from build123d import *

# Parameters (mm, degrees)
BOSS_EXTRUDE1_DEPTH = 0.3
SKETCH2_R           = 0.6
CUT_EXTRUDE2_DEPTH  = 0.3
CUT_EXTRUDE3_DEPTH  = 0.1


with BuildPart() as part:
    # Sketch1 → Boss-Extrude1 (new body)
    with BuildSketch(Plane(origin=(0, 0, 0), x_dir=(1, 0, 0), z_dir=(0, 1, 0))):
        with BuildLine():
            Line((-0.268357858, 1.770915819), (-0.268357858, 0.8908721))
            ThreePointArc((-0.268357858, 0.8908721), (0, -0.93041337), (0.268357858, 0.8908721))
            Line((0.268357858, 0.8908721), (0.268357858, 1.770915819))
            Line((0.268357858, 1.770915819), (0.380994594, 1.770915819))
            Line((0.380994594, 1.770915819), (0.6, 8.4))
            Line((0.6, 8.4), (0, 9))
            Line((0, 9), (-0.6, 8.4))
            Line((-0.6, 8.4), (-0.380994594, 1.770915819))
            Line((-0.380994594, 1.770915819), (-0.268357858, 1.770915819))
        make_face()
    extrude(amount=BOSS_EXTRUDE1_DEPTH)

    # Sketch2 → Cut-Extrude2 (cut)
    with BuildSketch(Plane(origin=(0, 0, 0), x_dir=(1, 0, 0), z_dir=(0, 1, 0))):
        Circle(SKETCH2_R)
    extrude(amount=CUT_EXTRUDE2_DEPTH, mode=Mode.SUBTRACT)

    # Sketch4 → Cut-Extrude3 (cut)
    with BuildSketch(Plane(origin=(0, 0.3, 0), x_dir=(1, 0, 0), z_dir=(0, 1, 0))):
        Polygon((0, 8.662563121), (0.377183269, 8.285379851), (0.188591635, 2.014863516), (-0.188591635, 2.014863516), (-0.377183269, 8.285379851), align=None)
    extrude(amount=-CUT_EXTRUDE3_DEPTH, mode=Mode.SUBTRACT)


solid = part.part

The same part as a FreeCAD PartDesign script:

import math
import FreeCAD as App
import Part
import Sketcher
Q = App.Units.Quantity

doc = App.newDocument("Part")
body = doc.addObject("PartDesign::Body", "Body")

sketch1 = body.newObject("Sketcher::SketchObject", "Sketch")
sketch1.AttachmentSupport = (doc.getObject("XZ_Plane"), [""])
sketch1.MapMode = "FlatFace"
sketch1.addGeometry([
    Part.LineSegment(App.Vector(-0.27, -1.77, 0), App.Vector(-0.27, -0.89, 0)),
    Part.ArcOfCircle(Part.Circle(App.Vector(0, 0, 0), App.Vector(0, 0, 1), 0.93), math.radians(-73), math.radians(253)),
    Part.LineSegment(App.Vector(0.27, -0.89, 0), App.Vector(0.27, -1.77, 0)),
    Part.LineSegment(App.Vector(0.27, -1.77, 0), App.Vector(0.38, -1.77, 0)),
    Part.LineSegment(App.Vector(0.38, -1.77, 0), App.Vector(0.6, -8.4, 0)),
    Part.LineSegment(App.Vector(0.6, -8.4, 0), App.Vector(0, -9, 0)),
    Part.LineSegment(App.Vector(0, -9, 0), App.Vector(-0.6, -8.4, 0)),
    Part.LineSegment(App.Vector(-0.6, -8.4, 0), App.Vector(-0.38, -1.77, 0)),
    Part.LineSegment(App.Vector(-0.38, -1.77, 0), App.Vector(-0.27, -1.77, 0)),
], False)
sketch1.addConstraint([
    Sketcher.Constraint("Coincident", 0, 2, 1, 2),
    Sketcher.Constraint("Coincident", 1, 1, 2, 1),
    Sketcher.Constraint("Coincident", 2, 2, 3, 1),
    Sketcher.Constraint("Coincident", 3, 2, 4, 1),
    Sketcher.Constraint("Coincident", 4, 2, 5, 1),
    Sketcher.Constraint("Coincident", 5, 2, 6, 1),
    Sketcher.Constraint("Coincident", 6, 2, 7, 1),
    Sketcher.Constraint("Coincident", 7, 2, 8, 1),
    Sketcher.Constraint("Coincident", 8, 2, 0, 1),
    Sketcher.Constraint("Vertical", 0),
    Sketcher.Constraint("Vertical", 2),
    Sketcher.Constraint("Horizontal", 3),
    Sketcher.Constraint("Horizontal", 8),
    Sketcher.Constraint("Coincident", 1, 3, -1, 1),
    Sketcher.Constraint("Symmetric", 4, 2, 6, 2, -2),
    Sketcher.Constraint("Symmetric", 3, 2, 7, 2, -2),
    Sketcher.Constraint("PointOnObject", 5, 2, -2),
    Sketcher.Constraint("Perpendicular", 5, 6),
    Sketcher.Constraint("Horizontal", 0, 2, 1, 1),
    Sketcher.Constraint("DistanceY", 5, 2, -1, 1, Q("9 mm")),
    Sketcher.Constraint("DistanceX", -1, 1, 4, 2, Q("0.6 mm")),
    Sketcher.Constraint("Radius", 1, Q("0.930413 mm")),
    Sketcher.Constraint("Distance", 4, Q("6.632701 mm")),
    Sketcher.Constraint("DistanceX", 3, 1, 3, 2, Q("0.112637 mm")),
    Sketcher.Constraint("DistanceY", 0, 1, 0, 2, Q("0.880044 mm")),
])
pad1 = body.newObject("PartDesign::Pad", "Pad")
pad1.Profile = sketch1
pad1.Length = 0.3
pad1.Reversed = True

sketch2 = body.newObject("Sketcher::SketchObject", "Sketch001")
sketch2.AttachmentSupport = (doc.getObject("XZ_Plane"), [""])
sketch2.MapMode = "FlatFace"
sketch2.addGeometry(Part.Circle(App.Vector(0, 0, 0), App.Vector(0, 0, 1), 0.6), False)
sketch2.addConstraint([
    Sketcher.Constraint("Coincident", 0, 3, -1, 1),
    Sketcher.Constraint("Diameter", 0, Q("1.2 mm")),
])
pocket1 = body.newObject("PartDesign::Pocket", "Pocket")
pocket1.Profile = sketch2
pocket1.Length = 0.3

sketch3 = body.newObject("Sketcher::SketchObject", "Sketch002")
sketch3.AttachmentSupport = (doc.getObject("XZ_Plane"), [""])
sketch3.MapMode = "FlatFace"
sketch3.AttachmentOffset = App.Placement(App.Vector(0, 0, -0.3), App.Rotation())
sketch3.addGeometry([
    Part.LineSegment(App.Vector(0.38, -8.29, 0), App.Vector(0, -8.66, 0)),
    Part.LineSegment(App.Vector(0, -8.66, 0), App.Vector(-0.38, -8.29, 0)),
    Part.LineSegment(App.Vector(-0.38, -8.29, 0), App.Vector(-0.19, -2.01, 0)),
    Part.LineSegment(App.Vector(-0.19, -2.01, 0), App.Vector(0.19, -2.01, 0)),
    Part.LineSegment(App.Vector(0.19, -2.01, 0), App.Vector(0.38, -8.29, 0)),
], False)
sketch3.addConstraint([
    Sketcher.Constraint("Coincident", 0, 2, 1, 1),
    Sketcher.Constraint("Coincident", 1, 2, 2, 1),
    Sketcher.Constraint("Coincident", 2, 2, 3, 1),
    Sketcher.Constraint("Coincident", 3, 2, 4, 1),
    Sketcher.Constraint("Coincident", 4, 2, 0, 1),
    Sketcher.Constraint("Horizontal", 3),
    Sketcher.Constraint("Symmetric", 1, 2, 4, 2, -2),
    Sketcher.Constraint("PointOnObject", 0, 2, -2),
    Sketcher.Constraint("Perpendicular", 0, 1),
    Sketcher.Constraint("Equal", 2, 4),
    Sketcher.Constraint("DistanceY", 0, 2, 2, 2, Q("6.6477 mm")),
    Sketcher.Constraint("Distance", 2, Q("6.273352 mm")),
    Sketcher.Constraint("DistanceX", 3, 1, 3, 2, Q("0.377183 mm")),
    Sketcher.Constraint("DistanceY", 1, 2, -1, 1, Q("8.28538 mm")),
])
pocket2 = body.newObject("PartDesign::Pocket", "Pocket001")
pocket2.Profile = sketch3
pocket2.Length = 0.1
pocket2.Reversed = True

doc.recompute()
